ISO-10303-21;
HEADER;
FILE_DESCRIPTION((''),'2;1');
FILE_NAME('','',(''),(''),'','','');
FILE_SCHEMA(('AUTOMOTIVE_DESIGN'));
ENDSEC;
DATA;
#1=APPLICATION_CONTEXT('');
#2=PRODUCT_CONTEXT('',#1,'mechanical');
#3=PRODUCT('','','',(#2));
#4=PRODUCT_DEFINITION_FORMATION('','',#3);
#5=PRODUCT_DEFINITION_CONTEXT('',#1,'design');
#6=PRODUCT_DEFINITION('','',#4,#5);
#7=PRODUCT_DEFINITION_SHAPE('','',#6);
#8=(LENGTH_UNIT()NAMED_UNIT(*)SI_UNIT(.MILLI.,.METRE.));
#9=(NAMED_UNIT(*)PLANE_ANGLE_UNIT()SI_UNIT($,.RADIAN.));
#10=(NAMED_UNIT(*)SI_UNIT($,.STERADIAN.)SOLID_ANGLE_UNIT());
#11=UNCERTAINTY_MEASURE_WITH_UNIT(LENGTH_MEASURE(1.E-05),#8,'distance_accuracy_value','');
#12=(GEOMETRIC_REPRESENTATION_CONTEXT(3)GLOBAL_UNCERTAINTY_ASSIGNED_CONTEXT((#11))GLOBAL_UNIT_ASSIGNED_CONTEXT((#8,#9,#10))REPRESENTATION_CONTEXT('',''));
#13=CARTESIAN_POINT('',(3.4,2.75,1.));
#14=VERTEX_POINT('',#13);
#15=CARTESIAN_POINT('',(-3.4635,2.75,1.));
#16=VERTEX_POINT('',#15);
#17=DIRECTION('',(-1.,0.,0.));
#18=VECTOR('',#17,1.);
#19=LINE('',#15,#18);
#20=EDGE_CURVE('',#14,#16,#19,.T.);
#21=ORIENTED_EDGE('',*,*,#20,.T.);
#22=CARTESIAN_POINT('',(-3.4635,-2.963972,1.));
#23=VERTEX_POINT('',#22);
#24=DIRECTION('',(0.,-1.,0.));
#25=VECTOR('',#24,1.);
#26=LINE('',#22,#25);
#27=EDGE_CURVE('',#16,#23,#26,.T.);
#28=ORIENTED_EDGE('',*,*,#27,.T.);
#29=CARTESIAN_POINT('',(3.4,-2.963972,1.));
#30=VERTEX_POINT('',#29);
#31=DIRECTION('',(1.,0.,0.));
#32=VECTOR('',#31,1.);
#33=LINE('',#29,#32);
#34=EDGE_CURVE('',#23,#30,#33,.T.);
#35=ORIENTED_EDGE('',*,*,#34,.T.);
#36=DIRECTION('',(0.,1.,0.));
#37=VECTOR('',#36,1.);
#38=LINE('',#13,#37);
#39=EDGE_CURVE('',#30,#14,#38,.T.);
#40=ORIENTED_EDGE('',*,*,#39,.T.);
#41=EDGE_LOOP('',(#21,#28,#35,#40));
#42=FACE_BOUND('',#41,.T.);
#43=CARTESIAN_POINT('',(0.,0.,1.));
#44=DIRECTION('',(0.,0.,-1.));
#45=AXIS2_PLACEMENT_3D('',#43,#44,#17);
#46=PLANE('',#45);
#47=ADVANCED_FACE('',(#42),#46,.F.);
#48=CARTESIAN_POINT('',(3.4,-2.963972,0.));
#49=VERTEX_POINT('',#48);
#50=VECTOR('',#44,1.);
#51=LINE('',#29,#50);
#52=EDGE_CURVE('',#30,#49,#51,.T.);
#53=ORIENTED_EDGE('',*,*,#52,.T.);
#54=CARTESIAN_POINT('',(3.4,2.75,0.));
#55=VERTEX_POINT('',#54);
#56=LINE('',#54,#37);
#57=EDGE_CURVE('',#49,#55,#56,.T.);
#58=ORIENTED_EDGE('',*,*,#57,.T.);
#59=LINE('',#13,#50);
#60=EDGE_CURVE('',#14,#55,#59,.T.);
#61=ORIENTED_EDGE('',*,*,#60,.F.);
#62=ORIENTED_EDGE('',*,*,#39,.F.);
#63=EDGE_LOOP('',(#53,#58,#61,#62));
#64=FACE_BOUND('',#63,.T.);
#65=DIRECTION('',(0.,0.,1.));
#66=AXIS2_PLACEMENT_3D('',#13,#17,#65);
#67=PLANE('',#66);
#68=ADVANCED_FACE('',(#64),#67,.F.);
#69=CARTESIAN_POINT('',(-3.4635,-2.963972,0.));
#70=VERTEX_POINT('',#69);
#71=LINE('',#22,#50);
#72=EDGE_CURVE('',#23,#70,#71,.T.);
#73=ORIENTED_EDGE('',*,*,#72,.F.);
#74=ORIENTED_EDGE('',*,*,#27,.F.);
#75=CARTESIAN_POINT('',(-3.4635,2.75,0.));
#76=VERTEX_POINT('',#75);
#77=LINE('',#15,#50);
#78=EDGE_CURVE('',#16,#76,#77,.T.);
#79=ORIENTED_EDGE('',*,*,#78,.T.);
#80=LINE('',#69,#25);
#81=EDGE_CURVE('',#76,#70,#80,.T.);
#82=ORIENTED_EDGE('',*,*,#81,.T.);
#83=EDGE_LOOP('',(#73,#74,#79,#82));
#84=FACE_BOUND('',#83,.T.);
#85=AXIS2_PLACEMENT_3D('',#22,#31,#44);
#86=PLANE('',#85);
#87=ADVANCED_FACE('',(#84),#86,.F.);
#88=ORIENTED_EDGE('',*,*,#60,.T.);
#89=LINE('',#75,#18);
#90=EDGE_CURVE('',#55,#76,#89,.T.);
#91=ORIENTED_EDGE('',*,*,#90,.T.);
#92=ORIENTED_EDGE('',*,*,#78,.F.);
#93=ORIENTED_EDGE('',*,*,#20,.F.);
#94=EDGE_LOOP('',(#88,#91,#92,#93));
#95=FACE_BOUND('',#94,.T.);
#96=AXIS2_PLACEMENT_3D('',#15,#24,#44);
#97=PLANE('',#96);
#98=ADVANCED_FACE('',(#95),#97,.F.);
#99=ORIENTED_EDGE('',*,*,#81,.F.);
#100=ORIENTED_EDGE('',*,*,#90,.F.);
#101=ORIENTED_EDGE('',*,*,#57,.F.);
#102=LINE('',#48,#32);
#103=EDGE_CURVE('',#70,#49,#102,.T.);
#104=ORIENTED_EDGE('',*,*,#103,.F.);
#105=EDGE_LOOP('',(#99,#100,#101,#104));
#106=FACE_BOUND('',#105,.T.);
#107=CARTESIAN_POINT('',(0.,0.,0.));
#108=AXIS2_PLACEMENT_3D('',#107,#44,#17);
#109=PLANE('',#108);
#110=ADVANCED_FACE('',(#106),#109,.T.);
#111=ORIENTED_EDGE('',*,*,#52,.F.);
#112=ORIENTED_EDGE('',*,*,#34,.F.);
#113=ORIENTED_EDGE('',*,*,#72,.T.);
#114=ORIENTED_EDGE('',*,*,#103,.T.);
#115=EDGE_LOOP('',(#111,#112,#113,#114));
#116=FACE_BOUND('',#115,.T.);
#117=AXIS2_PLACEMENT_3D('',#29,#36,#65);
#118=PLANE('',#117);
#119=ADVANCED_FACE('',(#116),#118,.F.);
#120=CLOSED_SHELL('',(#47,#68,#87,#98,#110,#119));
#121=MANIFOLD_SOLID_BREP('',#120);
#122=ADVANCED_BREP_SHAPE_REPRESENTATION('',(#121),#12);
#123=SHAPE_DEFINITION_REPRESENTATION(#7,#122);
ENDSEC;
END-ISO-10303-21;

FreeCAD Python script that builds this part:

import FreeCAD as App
import Part
import Sketcher
from FreeCAD import Vector
Q = App.Units.Quantity

doc = App.newDocument("Part")
body = doc.addObject("PartDesign::Body", "Body")

# Sketch on XY plane
sketch1 = body.newObject("Sketcher::SketchObject", "Sketch")
sketch1.AttachmentSupport = (doc.getObject("XY_Plane"), [""])
sketch1.MapMode = "FlatFace"
sketch1.addGeometry([
    Part.LineSegment(Vector(-3, 3, 0), Vector(-3, -3, 0)),
    Part.LineSegment(Vector(-3, -3, 0), Vector(3, -3, 0)),
    Part.LineSegment(Vector(3, -3, 0), Vector(3, 3, 0)),
    Part.LineSegment(Vector(3, 3, 0), Vector(-3, 3, 0)),
], False)
sketch1.addConstraint([
    Sketcher.Constraint("Coincident", 0, 2, 1, 1),
    Sketcher.Constraint("Coincident", 1, 2, 2, 1),
    Sketcher.Constraint("Coincident", 2, 2, 3, 1),
    Sketcher.Constraint("Coincident", 3, 2, 0, 1),
    Sketcher.Constraint("Vertical", 0),
    Sketcher.Constraint("Horizontal", 1),
    Sketcher.Constraint("Vertical", 2),
    Sketcher.Constraint("Horizontal", 3),
    Sketcher.Constraint("DistanceX", -1, 1, 1, 2, Q("3.4 mm")),
    Sketcher.Constraint("DistanceY", -1, 1, 2, 2, Q("2.75 mm")),
    Sketcher.Constraint("DistanceX", 1, 1, 1, 2, Q("6.8635 mm")),
    Sketcher.Constraint("DistanceY", 0, 2, 0, 1, Q("5.713972 mm")),
])
pad1 = body.newObject("PartDesign::Pad", "Pad")
pad1.Profile = sketch1
pad1.Length = 1

doc.recompute()
